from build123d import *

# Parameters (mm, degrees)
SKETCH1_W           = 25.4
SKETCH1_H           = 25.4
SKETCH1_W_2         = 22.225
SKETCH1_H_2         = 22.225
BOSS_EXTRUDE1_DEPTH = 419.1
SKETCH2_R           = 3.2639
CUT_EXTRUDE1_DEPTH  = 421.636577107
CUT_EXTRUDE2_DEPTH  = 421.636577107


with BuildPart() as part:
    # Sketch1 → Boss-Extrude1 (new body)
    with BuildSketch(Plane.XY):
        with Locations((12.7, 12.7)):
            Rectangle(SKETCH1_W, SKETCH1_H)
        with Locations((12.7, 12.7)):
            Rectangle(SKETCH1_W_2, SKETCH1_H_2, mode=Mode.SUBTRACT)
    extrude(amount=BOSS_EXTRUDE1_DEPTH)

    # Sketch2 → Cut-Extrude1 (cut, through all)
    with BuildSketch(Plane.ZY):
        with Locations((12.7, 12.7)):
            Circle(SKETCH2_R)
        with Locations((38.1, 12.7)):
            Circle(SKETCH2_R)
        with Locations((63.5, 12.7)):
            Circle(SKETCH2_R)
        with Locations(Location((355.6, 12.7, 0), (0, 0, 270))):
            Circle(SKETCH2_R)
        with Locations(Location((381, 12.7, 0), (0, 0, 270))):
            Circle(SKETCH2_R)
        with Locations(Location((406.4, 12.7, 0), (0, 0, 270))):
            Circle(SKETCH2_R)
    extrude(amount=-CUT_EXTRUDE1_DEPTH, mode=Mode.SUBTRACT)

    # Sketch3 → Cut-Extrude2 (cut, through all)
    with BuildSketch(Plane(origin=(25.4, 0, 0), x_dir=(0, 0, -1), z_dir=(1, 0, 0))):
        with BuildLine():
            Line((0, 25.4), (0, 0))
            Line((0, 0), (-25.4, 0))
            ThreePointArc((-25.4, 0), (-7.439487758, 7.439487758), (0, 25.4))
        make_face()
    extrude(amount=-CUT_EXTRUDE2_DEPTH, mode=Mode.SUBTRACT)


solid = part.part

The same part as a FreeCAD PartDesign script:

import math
import FreeCAD as App
import Part
import Sketcher
Q = App.Units.Quantity


def add_polygon(sketch, points):
    """Adds a closed chain of lines whose ends are joined by coincident constraints."""
    first, n = sketch.GeometryCount, len(points)
    for a, b in zip(points, points[1:] + points[:1]):
        sketch.addGeometry(Part.LineSegment(App.Vector(*a, 0), App.Vector(*b, 0)), False)
    for i in range(n):
        sketch.addConstraint(Sketcher.Constraint("Coincident", first + i, 2, first + (i + 1) % n, 1))

doc = App.newDocument("Part")
body = doc.addObject("PartDesign::Body", "Body")

sketch1 = body.newObject("Sketcher::SketchObject", "Sketch")
sketch1.AttachmentSupport = (doc.getObject("XY_Plane"), [""])
sketch1.MapMode = "FlatFace"
add_polygon(sketch1, [(0, 25), (0, 0), (25, 0), (25, 25)])
add_polygon(sketch1, [(24, 2), (2, 2), (2, 24), (24, 24)])
sketch1.addConstraint([
    Sketcher.Constraint("Vertical", 0),
    Sketcher.Constraint("Horizontal", 1),
    Sketcher.Constraint("Vertical", 2),
    Sketcher.Constraint("Horizontal", 3),
    Sketcher.Constraint("Horizontal", 4),
    Sketcher.Constraint("Vertical", 5),
    Sketcher.Constraint("Horizontal", 6),
    Sketcher.Constraint("Vertical", 7),
    Sketcher.Constraint("Coincident", 0, 2, -1, 1),
    Sketcher.Constraint("Equal", 3, 0),
    Sketcher.Constraint("Equal", 6, 5),
    Sketcher.Constraint("DistanceX", 1, 1, 1, 2, Q("1 in")),
    Sketcher.Constraint("DistanceX", 4, 2, 4, 1, Q("0.875 in")),
    Sketcher.Constraint("DistanceX", -1, 1, 4, 2, Q("0.0625 in")),
    Sketcher.Constraint("DistanceY", -1, 1, 4, 2, Q("0.0625 in")),
])
pad1 = body.newObject("PartDesign::Pad", "Pad")
pad1.Profile = sketch1
pad1.Length = Q("16.5 in")

sketch2 = body.newObject("Sketcher::SketchObject", "Sketch001")
sketch2.AttachmentSupport = (doc.getObject("YZ_Plane"), [""])
sketch2.MapMode = "FlatFace"
sketch2.addGeometry([
    Part.Circle(App.Vector(12.7, 12.7, 0), App.Vector(0, 0, 1), 3.3),
    Part.Circle(App.Vector(12.7, 38.1, 0), App.Vector(0, 0, 1), 3.3),
    Part.Circle(App.Vector(12.7, 63.5, 0), App.Vector(0, 0, 1), 3.3),
    Part.Circle(App.Vector(12.7, 355.6, 0), App.Vector(0, 0, 1), 3.3),
    Part.Circle(App.Vector(12.7, 381, 0), App.Vector(0, 0, 1), 3.3),
    Part.Circle(App.Vector(12.7, 406.4, 0), App.Vector(0, 0, 1), 3.3),
], False)
sketch2.addConstraint([
    Sketcher.Constraint("Equal", 0, 1),
    Sketcher.Constraint("Equal", 1, 2),
    Sketcher.Constraint("Equal", 2, 3),
    Sketcher.Constraint("Equal", 3, 4),
    Sketcher.Constraint("Equal", 4, 5),
    Sketcher.Constraint("Vertical", 0, 3, 1, 3),
    Sketcher.Constraint("Vertical", 1, 3, 2, 3),
    Sketcher.Constraint("Vertical", 2, 3, 3, 3),
    Sketcher.Constraint("Vertical", 3, 3, 4, 3),
    Sketcher.Constraint("Vertical", 4, 3, 5, 3),
    Sketcher.Constraint("Diameter", 0, Q("0.257 in")),
    Sketcher.Constraint("DistanceY", -1, 1, 3, 3, Q("14 in")),
    Sketcher.Constraint("DistanceY", -1, 1, 4, 3, Q("15 in")),
    Sketcher.Constraint("DistanceY", -1, 1, 5, 3, Q("16 in")),
    Sketcher.Constraint("DistanceY", 0, 3, 1, 3, Q("1 in")),
    Sketcher.Constraint("DistanceY", 1, 3, 2, 3, Q("1 in")),
    Sketcher.Constraint("DistanceX", -1, 1, 0, 3, Q("0.5 in")),
    Sketcher.Constraint("DistanceY", -1, 1, 0, 3, Q("0.5 in")),
])
pocket1 = body.newObject("PartDesign::Pocket", "Pocket")
pocket1.Profile = sketch2
pocket1.Type = "ThroughAll"
pocket1.Reversed = True

sketch3 = body.newObject("Sketcher::SketchObject", "Sketch002")
sketch3.AttachmentSupport = (doc.getObject("YZ_Plane"), [""])
sketch3.MapMode = "FlatFace"
sketch3.AttachmentOffset = App.Placement(App.Vector(0, 0, 1 * 25.4), App.Rotation())
sketch3.addGeometry([
    Part.LineSegment(App.Vector(0, 0, 0), App.Vector(25, 0, 0)),
    Part.ArcOfCircle(Part.Circle(App.Vector(25, 25, 0), App.Vector(0, 0, 1), 25), math.radians(180), math.radians(270)),
    Part.LineSegment(App.Vector(0, 25, 0), App.Vector(0, 0, 0)),
], False)
sketch3.addConstraint([
    Sketcher.Constraint("Tangent", 0, 2, 1, 2),
    Sketcher.Constraint("Tangent", 1, 1, 2, 1),
    Sketcher.Constraint("Coincident", 2, 2, 0, 1),
    Sketcher.Constraint("Horizontal", 0),
    Sketcher.Constraint("Vertical", 2),
    Sketcher.Constraint("Coincident", 2, 2, -1, 1),
    Sketcher.Constraint("Radius", 1, Q("1 in")),
])
pocket2 = body.newObject("PartDesign::Pocket", "Pocket001")
pocket2.Profile = sketch3
pocket2.Type = "ThroughAll"

doc.recompute()
